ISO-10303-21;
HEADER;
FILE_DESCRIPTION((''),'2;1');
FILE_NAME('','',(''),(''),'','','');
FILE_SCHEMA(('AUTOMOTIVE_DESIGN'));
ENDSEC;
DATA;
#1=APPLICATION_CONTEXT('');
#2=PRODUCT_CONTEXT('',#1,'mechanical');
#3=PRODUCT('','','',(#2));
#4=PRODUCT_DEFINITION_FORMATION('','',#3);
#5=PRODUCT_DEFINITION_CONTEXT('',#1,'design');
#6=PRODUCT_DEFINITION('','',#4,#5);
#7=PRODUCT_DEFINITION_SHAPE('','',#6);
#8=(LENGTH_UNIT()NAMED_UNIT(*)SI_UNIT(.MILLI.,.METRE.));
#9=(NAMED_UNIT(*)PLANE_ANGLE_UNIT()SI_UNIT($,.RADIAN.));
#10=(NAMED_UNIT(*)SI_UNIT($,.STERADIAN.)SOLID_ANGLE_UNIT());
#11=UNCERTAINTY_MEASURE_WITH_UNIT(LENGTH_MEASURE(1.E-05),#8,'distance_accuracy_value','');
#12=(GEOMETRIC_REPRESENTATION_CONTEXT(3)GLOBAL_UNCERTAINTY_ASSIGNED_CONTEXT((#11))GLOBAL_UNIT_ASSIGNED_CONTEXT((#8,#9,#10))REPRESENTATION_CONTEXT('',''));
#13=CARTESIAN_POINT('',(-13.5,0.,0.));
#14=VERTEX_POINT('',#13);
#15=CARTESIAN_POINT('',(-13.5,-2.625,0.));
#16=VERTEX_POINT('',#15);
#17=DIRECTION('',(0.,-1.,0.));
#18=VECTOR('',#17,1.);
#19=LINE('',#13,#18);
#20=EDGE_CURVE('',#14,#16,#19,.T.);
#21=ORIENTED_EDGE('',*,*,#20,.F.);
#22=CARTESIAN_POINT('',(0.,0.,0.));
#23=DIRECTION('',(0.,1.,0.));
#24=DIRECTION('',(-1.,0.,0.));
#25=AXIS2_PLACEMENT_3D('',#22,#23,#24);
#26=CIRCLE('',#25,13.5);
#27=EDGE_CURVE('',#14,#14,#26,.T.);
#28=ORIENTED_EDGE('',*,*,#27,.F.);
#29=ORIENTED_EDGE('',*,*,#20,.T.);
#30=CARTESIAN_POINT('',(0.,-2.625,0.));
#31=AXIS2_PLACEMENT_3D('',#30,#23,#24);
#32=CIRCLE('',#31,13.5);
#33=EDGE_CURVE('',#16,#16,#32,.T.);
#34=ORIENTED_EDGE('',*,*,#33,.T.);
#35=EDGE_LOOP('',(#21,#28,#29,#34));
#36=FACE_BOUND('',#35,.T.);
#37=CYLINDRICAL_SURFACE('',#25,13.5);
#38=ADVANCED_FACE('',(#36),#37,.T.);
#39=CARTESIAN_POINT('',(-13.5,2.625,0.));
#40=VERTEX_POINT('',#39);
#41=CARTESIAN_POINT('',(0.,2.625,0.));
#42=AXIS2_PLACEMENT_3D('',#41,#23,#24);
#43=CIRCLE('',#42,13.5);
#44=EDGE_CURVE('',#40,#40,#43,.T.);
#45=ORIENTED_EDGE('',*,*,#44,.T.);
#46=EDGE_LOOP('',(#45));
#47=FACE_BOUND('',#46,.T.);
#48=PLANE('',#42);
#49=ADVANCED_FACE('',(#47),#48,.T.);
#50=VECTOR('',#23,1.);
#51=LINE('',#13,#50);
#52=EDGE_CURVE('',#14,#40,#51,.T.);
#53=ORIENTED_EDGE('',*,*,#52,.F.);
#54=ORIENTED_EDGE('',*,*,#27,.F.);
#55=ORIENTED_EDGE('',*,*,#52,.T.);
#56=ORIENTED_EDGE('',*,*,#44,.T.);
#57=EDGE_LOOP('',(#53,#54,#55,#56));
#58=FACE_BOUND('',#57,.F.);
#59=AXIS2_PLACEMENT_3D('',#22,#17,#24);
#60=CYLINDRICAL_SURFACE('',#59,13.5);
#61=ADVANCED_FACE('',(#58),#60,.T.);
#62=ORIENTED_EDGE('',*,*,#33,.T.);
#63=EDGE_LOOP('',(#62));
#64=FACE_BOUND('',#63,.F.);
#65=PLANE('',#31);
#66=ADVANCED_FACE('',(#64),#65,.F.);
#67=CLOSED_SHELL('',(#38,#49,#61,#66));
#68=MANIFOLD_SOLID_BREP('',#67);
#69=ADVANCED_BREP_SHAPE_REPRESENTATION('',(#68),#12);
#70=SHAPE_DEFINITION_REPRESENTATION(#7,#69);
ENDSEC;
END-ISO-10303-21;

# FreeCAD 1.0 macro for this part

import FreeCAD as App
import Part
import Sketcher
Q = App.Units.Quantity

doc = App.newDocument("Part")
body = doc.addObject("PartDesign::Body", "Body")

sketch1 = doc.addObject("Sketcher::SketchObject", "Sketch")
body.addObject(sketch1)
sketch1.AttachmentSupport = (doc.XZ_Plane, [""])
sketch1.MapMode = "FlatFace"
sketch1.addGeometry(Part.Circle(App.Vector(0, 0, 0), App.Vector(0, 0, 1), 14), False)
sketch1.addConstraint(Sketcher.Constraint("Coincident", 0, 3, -1, 1))
sketch1.addConstraint(Sketcher.Constraint("Diameter", 0, Q("1.063 in")))
pad1 = doc.addObject("PartDesign::Pad", "Pad")
body.addObject(pad1)
pad1.Profile = sketch1
pad1.Length = Q("0.2066929 in")
pad1.Midplane = True

doc.recompute()
